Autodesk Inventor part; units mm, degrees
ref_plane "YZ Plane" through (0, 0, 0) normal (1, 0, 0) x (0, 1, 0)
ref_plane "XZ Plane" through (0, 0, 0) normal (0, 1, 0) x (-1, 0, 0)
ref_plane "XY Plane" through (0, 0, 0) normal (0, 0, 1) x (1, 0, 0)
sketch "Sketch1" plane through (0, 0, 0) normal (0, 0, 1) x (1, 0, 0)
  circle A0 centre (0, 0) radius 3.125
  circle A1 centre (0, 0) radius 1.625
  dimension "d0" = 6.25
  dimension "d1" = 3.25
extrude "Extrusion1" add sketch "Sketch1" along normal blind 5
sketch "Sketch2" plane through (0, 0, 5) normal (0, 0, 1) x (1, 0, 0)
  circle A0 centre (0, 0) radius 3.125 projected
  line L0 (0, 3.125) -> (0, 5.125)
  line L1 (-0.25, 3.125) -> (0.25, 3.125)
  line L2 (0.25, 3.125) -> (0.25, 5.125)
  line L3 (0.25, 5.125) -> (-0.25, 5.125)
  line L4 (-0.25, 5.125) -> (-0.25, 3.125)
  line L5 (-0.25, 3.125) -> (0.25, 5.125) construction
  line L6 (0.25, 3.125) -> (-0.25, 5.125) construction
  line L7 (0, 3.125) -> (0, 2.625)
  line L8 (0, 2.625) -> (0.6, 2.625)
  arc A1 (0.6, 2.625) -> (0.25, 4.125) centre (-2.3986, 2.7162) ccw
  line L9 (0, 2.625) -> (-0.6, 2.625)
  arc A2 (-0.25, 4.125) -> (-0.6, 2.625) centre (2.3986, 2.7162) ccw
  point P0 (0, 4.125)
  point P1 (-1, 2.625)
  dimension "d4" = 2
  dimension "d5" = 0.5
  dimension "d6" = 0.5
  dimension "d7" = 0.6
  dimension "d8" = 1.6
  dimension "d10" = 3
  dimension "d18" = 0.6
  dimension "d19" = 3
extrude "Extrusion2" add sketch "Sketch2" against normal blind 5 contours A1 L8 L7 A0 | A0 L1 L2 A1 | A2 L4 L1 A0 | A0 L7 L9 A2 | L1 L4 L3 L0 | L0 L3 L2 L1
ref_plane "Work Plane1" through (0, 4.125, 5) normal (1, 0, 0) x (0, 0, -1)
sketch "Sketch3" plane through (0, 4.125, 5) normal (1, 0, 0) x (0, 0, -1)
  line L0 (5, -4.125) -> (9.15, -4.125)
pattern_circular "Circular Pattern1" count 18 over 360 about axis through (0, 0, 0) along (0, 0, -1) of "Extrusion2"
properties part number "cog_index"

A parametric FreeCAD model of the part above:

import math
import FreeCAD as App
import Part
import Sketcher
Q = App.Units.Quantity

doc = App.newDocument("Part")
params = doc.addObject("Spreadsheet::Sheet", "Params")
for row, (alias, value) in enumerate([
    ("sketch1_diameter", "6.25 mm"),
    ("sketch1_diameter2", "3.25 mm"),
    ("pad1_length", "5 mm"),
    ("sketch2_radius", "3 mm"),
    ("sketch2_width", "0.5 mm"),
    ("sketch2_height", "1 mm"),
    ("pad2_length", "5 mm"),
], start=1):
    params.set(f"A{row}", alias)
    params.set(f"B{row}", "=" + value)
    params.setAlias(f"B{row}", alias)

body = doc.addObject("PartDesign::Body", "Body")

# Sketch on XY plane
sketch1 = body.newObject("Sketcher::SketchObject", "Sketch")
sketch1.AttachmentSupport = (doc.getObject("XY_Plane"), [""])
sketch1.MapMode = "FlatFace"
sketch1.addGeometry(Part.Circle(App.Vector(0, 0, 0), App.Vector(0, 0, 1), 3.1), False)
sketch1.addGeometry(Part.Circle(App.Vector(0, 0, 0), App.Vector(0, 0, 1), 1.6), False)
sketch1.addConstraint(Sketcher.Constraint("Coincident", 0, 3, -1, 1))
sketch1.addConstraint(Sketcher.Constraint("Coincident", 1, 3, -1, 1))
sketch1.addConstraint(Sketcher.Constraint("Diameter", 0, Q("6.25 mm")))
sketch1.addConstraint(Sketcher.Constraint("Diameter", 1, Q("3.25 mm")))
sketch1.setExpression("Constraints[2]", "Params.sketch1_diameter")
sketch1.setExpression("Constraints[3]", "Params.sketch1_diameter2")
pad1 = body.newObject("PartDesign::Pad", "Pad")
pad1.Profile = sketch1
pad1.setExpression("Length", "Params.pad1_length")

# Sketch on XY plane
sketch2 = body.newObject("Sketcher::SketchObject", "Sketch001")
sketch2.AttachmentSupport = (doc.getObject("XY_Plane"), [""])
sketch2.MapMode = "FlatFace"
sketch2.AttachmentOffset = App.Placement(App.Vector(0, 0, 5), App.Rotation())
sketch2.addGeometry(Part.ArcOfCircle(Part.Circle(App.Vector(-2.4, 2.7, 0), App.Vector(0, 0, 1), 3), math.radians(-2), math.radians(28)), False)
sketch2.addGeometry(Part.LineSegment(App.Vector(0.2, 4.1, 0), App.Vector(0.2, 5.1, 0)), False)
sketch2.addGeometry(Part.LineSegment(App.Vector(0.2, 5.1, 0), App.Vector(-0.2, 5.1, 0)), False)
sketch2.addGeometry(Part.LineSegment(App.Vector(-0.2, 5.1, 0), App.Vector(-0.2, 4.1, 0)), False)
sketch2.addGeometry(Part.ArcOfCircle(Part.Circle(App.Vector(2.4, 2.7, 0), App.Vector(0, 0, 1), 3), math.radians(152), math.radians(182)), False)
sketch2.addGeometry(Part.LineSegment(App.Vector(-0.6, 2.6, 0), App.Vector(0.6, 2.6, 0)), False)
sketch2.addConstraint(Sketcher.Constraint("Coincident", 0, 2, 1, 1))
sketch2.addConstraint(Sketcher.Constraint("Coincident", 1, 2, 2, 1))
sketch2.addConstraint(Sketcher.Constraint("Coincident", 2, 2, 3, 1))
sketch2.addConstraint(Sketcher.Constraint("Coincident", 3, 2, 4, 1))
sketch2.addConstraint(Sketcher.Constraint("Coincident", 4, 2, 5, 1))
sketch2.addConstraint(Sketcher.Constraint("Coincident", 5, 2, 0, 1))
sketch2.addConstraint(Sketcher.Constraint("Vertical", 1))
sketch2.addConstraint(Sketcher.Constraint("Horizontal", 2))
sketch2.addConstraint(Sketcher.Constraint("Vertical", 3))
sketch2.addConstraint(Sketcher.Constraint("Horizontal", 5))
sketch2.addConstraint(Sketcher.Constraint("Equal", 0, 4))
sketch2.addConstraint(Sketcher.Constraint("Symmetric", 0, 3, 4, 3, -2))
sketch2.addConstraint(Sketcher.Constraint("Horizontal", 0, 2, 3, 2))
sketch2.addConstraint(Sketcher.Constraint("Radius", 0, Q("3 mm")))
sketch2.addConstraint(Sketcher.Constraint("DistanceX", 2, 2, 2, 1, Q("0.5 mm")))
sketch2.addConstraint(Sketcher.Constraint("DistanceX", 4, 2, -1, 1, Q("0.6 mm")))
sketch2.addConstraint(Sketcher.Constraint("DistanceY", 1, 1, 1, 2, Q("1 mm")))
sketch2.addConstraint(Sketcher.Constraint("DistanceY", 4, 2, 3, 2, Q("1.5 mm")))
sketch2.addConstraint(Sketcher.Constraint("DistanceY", -1, 1, 0, 2, Q("4.125 mm")))
sketch2.setExpression("Constraints[13]", "Params.sketch2_radius")
sketch2.setExpression("Constraints[14]", "Params.sketch2_width")
sketch2.setExpression("Constraints[16]", "Params.sketch2_height")
pad2 = body.newObject("PartDesign::Pad", "Pad001")
pad2.Profile = sketch2
pad2.setExpression("Length", "Params.pad2_length")
pad2.Reversed = True
doc.recompute()

polarpattern = body.newObject("PartDesign::PolarPattern", "PolarPattern")
polarpattern.Originals = [pad2]
polarpattern.Axis = (doc.getObject("Z_Axis"), [""])
polarpattern.Angle = 360
polarpattern.Occurrences = 18
body.Tip = polarpattern

doc.recompute()
